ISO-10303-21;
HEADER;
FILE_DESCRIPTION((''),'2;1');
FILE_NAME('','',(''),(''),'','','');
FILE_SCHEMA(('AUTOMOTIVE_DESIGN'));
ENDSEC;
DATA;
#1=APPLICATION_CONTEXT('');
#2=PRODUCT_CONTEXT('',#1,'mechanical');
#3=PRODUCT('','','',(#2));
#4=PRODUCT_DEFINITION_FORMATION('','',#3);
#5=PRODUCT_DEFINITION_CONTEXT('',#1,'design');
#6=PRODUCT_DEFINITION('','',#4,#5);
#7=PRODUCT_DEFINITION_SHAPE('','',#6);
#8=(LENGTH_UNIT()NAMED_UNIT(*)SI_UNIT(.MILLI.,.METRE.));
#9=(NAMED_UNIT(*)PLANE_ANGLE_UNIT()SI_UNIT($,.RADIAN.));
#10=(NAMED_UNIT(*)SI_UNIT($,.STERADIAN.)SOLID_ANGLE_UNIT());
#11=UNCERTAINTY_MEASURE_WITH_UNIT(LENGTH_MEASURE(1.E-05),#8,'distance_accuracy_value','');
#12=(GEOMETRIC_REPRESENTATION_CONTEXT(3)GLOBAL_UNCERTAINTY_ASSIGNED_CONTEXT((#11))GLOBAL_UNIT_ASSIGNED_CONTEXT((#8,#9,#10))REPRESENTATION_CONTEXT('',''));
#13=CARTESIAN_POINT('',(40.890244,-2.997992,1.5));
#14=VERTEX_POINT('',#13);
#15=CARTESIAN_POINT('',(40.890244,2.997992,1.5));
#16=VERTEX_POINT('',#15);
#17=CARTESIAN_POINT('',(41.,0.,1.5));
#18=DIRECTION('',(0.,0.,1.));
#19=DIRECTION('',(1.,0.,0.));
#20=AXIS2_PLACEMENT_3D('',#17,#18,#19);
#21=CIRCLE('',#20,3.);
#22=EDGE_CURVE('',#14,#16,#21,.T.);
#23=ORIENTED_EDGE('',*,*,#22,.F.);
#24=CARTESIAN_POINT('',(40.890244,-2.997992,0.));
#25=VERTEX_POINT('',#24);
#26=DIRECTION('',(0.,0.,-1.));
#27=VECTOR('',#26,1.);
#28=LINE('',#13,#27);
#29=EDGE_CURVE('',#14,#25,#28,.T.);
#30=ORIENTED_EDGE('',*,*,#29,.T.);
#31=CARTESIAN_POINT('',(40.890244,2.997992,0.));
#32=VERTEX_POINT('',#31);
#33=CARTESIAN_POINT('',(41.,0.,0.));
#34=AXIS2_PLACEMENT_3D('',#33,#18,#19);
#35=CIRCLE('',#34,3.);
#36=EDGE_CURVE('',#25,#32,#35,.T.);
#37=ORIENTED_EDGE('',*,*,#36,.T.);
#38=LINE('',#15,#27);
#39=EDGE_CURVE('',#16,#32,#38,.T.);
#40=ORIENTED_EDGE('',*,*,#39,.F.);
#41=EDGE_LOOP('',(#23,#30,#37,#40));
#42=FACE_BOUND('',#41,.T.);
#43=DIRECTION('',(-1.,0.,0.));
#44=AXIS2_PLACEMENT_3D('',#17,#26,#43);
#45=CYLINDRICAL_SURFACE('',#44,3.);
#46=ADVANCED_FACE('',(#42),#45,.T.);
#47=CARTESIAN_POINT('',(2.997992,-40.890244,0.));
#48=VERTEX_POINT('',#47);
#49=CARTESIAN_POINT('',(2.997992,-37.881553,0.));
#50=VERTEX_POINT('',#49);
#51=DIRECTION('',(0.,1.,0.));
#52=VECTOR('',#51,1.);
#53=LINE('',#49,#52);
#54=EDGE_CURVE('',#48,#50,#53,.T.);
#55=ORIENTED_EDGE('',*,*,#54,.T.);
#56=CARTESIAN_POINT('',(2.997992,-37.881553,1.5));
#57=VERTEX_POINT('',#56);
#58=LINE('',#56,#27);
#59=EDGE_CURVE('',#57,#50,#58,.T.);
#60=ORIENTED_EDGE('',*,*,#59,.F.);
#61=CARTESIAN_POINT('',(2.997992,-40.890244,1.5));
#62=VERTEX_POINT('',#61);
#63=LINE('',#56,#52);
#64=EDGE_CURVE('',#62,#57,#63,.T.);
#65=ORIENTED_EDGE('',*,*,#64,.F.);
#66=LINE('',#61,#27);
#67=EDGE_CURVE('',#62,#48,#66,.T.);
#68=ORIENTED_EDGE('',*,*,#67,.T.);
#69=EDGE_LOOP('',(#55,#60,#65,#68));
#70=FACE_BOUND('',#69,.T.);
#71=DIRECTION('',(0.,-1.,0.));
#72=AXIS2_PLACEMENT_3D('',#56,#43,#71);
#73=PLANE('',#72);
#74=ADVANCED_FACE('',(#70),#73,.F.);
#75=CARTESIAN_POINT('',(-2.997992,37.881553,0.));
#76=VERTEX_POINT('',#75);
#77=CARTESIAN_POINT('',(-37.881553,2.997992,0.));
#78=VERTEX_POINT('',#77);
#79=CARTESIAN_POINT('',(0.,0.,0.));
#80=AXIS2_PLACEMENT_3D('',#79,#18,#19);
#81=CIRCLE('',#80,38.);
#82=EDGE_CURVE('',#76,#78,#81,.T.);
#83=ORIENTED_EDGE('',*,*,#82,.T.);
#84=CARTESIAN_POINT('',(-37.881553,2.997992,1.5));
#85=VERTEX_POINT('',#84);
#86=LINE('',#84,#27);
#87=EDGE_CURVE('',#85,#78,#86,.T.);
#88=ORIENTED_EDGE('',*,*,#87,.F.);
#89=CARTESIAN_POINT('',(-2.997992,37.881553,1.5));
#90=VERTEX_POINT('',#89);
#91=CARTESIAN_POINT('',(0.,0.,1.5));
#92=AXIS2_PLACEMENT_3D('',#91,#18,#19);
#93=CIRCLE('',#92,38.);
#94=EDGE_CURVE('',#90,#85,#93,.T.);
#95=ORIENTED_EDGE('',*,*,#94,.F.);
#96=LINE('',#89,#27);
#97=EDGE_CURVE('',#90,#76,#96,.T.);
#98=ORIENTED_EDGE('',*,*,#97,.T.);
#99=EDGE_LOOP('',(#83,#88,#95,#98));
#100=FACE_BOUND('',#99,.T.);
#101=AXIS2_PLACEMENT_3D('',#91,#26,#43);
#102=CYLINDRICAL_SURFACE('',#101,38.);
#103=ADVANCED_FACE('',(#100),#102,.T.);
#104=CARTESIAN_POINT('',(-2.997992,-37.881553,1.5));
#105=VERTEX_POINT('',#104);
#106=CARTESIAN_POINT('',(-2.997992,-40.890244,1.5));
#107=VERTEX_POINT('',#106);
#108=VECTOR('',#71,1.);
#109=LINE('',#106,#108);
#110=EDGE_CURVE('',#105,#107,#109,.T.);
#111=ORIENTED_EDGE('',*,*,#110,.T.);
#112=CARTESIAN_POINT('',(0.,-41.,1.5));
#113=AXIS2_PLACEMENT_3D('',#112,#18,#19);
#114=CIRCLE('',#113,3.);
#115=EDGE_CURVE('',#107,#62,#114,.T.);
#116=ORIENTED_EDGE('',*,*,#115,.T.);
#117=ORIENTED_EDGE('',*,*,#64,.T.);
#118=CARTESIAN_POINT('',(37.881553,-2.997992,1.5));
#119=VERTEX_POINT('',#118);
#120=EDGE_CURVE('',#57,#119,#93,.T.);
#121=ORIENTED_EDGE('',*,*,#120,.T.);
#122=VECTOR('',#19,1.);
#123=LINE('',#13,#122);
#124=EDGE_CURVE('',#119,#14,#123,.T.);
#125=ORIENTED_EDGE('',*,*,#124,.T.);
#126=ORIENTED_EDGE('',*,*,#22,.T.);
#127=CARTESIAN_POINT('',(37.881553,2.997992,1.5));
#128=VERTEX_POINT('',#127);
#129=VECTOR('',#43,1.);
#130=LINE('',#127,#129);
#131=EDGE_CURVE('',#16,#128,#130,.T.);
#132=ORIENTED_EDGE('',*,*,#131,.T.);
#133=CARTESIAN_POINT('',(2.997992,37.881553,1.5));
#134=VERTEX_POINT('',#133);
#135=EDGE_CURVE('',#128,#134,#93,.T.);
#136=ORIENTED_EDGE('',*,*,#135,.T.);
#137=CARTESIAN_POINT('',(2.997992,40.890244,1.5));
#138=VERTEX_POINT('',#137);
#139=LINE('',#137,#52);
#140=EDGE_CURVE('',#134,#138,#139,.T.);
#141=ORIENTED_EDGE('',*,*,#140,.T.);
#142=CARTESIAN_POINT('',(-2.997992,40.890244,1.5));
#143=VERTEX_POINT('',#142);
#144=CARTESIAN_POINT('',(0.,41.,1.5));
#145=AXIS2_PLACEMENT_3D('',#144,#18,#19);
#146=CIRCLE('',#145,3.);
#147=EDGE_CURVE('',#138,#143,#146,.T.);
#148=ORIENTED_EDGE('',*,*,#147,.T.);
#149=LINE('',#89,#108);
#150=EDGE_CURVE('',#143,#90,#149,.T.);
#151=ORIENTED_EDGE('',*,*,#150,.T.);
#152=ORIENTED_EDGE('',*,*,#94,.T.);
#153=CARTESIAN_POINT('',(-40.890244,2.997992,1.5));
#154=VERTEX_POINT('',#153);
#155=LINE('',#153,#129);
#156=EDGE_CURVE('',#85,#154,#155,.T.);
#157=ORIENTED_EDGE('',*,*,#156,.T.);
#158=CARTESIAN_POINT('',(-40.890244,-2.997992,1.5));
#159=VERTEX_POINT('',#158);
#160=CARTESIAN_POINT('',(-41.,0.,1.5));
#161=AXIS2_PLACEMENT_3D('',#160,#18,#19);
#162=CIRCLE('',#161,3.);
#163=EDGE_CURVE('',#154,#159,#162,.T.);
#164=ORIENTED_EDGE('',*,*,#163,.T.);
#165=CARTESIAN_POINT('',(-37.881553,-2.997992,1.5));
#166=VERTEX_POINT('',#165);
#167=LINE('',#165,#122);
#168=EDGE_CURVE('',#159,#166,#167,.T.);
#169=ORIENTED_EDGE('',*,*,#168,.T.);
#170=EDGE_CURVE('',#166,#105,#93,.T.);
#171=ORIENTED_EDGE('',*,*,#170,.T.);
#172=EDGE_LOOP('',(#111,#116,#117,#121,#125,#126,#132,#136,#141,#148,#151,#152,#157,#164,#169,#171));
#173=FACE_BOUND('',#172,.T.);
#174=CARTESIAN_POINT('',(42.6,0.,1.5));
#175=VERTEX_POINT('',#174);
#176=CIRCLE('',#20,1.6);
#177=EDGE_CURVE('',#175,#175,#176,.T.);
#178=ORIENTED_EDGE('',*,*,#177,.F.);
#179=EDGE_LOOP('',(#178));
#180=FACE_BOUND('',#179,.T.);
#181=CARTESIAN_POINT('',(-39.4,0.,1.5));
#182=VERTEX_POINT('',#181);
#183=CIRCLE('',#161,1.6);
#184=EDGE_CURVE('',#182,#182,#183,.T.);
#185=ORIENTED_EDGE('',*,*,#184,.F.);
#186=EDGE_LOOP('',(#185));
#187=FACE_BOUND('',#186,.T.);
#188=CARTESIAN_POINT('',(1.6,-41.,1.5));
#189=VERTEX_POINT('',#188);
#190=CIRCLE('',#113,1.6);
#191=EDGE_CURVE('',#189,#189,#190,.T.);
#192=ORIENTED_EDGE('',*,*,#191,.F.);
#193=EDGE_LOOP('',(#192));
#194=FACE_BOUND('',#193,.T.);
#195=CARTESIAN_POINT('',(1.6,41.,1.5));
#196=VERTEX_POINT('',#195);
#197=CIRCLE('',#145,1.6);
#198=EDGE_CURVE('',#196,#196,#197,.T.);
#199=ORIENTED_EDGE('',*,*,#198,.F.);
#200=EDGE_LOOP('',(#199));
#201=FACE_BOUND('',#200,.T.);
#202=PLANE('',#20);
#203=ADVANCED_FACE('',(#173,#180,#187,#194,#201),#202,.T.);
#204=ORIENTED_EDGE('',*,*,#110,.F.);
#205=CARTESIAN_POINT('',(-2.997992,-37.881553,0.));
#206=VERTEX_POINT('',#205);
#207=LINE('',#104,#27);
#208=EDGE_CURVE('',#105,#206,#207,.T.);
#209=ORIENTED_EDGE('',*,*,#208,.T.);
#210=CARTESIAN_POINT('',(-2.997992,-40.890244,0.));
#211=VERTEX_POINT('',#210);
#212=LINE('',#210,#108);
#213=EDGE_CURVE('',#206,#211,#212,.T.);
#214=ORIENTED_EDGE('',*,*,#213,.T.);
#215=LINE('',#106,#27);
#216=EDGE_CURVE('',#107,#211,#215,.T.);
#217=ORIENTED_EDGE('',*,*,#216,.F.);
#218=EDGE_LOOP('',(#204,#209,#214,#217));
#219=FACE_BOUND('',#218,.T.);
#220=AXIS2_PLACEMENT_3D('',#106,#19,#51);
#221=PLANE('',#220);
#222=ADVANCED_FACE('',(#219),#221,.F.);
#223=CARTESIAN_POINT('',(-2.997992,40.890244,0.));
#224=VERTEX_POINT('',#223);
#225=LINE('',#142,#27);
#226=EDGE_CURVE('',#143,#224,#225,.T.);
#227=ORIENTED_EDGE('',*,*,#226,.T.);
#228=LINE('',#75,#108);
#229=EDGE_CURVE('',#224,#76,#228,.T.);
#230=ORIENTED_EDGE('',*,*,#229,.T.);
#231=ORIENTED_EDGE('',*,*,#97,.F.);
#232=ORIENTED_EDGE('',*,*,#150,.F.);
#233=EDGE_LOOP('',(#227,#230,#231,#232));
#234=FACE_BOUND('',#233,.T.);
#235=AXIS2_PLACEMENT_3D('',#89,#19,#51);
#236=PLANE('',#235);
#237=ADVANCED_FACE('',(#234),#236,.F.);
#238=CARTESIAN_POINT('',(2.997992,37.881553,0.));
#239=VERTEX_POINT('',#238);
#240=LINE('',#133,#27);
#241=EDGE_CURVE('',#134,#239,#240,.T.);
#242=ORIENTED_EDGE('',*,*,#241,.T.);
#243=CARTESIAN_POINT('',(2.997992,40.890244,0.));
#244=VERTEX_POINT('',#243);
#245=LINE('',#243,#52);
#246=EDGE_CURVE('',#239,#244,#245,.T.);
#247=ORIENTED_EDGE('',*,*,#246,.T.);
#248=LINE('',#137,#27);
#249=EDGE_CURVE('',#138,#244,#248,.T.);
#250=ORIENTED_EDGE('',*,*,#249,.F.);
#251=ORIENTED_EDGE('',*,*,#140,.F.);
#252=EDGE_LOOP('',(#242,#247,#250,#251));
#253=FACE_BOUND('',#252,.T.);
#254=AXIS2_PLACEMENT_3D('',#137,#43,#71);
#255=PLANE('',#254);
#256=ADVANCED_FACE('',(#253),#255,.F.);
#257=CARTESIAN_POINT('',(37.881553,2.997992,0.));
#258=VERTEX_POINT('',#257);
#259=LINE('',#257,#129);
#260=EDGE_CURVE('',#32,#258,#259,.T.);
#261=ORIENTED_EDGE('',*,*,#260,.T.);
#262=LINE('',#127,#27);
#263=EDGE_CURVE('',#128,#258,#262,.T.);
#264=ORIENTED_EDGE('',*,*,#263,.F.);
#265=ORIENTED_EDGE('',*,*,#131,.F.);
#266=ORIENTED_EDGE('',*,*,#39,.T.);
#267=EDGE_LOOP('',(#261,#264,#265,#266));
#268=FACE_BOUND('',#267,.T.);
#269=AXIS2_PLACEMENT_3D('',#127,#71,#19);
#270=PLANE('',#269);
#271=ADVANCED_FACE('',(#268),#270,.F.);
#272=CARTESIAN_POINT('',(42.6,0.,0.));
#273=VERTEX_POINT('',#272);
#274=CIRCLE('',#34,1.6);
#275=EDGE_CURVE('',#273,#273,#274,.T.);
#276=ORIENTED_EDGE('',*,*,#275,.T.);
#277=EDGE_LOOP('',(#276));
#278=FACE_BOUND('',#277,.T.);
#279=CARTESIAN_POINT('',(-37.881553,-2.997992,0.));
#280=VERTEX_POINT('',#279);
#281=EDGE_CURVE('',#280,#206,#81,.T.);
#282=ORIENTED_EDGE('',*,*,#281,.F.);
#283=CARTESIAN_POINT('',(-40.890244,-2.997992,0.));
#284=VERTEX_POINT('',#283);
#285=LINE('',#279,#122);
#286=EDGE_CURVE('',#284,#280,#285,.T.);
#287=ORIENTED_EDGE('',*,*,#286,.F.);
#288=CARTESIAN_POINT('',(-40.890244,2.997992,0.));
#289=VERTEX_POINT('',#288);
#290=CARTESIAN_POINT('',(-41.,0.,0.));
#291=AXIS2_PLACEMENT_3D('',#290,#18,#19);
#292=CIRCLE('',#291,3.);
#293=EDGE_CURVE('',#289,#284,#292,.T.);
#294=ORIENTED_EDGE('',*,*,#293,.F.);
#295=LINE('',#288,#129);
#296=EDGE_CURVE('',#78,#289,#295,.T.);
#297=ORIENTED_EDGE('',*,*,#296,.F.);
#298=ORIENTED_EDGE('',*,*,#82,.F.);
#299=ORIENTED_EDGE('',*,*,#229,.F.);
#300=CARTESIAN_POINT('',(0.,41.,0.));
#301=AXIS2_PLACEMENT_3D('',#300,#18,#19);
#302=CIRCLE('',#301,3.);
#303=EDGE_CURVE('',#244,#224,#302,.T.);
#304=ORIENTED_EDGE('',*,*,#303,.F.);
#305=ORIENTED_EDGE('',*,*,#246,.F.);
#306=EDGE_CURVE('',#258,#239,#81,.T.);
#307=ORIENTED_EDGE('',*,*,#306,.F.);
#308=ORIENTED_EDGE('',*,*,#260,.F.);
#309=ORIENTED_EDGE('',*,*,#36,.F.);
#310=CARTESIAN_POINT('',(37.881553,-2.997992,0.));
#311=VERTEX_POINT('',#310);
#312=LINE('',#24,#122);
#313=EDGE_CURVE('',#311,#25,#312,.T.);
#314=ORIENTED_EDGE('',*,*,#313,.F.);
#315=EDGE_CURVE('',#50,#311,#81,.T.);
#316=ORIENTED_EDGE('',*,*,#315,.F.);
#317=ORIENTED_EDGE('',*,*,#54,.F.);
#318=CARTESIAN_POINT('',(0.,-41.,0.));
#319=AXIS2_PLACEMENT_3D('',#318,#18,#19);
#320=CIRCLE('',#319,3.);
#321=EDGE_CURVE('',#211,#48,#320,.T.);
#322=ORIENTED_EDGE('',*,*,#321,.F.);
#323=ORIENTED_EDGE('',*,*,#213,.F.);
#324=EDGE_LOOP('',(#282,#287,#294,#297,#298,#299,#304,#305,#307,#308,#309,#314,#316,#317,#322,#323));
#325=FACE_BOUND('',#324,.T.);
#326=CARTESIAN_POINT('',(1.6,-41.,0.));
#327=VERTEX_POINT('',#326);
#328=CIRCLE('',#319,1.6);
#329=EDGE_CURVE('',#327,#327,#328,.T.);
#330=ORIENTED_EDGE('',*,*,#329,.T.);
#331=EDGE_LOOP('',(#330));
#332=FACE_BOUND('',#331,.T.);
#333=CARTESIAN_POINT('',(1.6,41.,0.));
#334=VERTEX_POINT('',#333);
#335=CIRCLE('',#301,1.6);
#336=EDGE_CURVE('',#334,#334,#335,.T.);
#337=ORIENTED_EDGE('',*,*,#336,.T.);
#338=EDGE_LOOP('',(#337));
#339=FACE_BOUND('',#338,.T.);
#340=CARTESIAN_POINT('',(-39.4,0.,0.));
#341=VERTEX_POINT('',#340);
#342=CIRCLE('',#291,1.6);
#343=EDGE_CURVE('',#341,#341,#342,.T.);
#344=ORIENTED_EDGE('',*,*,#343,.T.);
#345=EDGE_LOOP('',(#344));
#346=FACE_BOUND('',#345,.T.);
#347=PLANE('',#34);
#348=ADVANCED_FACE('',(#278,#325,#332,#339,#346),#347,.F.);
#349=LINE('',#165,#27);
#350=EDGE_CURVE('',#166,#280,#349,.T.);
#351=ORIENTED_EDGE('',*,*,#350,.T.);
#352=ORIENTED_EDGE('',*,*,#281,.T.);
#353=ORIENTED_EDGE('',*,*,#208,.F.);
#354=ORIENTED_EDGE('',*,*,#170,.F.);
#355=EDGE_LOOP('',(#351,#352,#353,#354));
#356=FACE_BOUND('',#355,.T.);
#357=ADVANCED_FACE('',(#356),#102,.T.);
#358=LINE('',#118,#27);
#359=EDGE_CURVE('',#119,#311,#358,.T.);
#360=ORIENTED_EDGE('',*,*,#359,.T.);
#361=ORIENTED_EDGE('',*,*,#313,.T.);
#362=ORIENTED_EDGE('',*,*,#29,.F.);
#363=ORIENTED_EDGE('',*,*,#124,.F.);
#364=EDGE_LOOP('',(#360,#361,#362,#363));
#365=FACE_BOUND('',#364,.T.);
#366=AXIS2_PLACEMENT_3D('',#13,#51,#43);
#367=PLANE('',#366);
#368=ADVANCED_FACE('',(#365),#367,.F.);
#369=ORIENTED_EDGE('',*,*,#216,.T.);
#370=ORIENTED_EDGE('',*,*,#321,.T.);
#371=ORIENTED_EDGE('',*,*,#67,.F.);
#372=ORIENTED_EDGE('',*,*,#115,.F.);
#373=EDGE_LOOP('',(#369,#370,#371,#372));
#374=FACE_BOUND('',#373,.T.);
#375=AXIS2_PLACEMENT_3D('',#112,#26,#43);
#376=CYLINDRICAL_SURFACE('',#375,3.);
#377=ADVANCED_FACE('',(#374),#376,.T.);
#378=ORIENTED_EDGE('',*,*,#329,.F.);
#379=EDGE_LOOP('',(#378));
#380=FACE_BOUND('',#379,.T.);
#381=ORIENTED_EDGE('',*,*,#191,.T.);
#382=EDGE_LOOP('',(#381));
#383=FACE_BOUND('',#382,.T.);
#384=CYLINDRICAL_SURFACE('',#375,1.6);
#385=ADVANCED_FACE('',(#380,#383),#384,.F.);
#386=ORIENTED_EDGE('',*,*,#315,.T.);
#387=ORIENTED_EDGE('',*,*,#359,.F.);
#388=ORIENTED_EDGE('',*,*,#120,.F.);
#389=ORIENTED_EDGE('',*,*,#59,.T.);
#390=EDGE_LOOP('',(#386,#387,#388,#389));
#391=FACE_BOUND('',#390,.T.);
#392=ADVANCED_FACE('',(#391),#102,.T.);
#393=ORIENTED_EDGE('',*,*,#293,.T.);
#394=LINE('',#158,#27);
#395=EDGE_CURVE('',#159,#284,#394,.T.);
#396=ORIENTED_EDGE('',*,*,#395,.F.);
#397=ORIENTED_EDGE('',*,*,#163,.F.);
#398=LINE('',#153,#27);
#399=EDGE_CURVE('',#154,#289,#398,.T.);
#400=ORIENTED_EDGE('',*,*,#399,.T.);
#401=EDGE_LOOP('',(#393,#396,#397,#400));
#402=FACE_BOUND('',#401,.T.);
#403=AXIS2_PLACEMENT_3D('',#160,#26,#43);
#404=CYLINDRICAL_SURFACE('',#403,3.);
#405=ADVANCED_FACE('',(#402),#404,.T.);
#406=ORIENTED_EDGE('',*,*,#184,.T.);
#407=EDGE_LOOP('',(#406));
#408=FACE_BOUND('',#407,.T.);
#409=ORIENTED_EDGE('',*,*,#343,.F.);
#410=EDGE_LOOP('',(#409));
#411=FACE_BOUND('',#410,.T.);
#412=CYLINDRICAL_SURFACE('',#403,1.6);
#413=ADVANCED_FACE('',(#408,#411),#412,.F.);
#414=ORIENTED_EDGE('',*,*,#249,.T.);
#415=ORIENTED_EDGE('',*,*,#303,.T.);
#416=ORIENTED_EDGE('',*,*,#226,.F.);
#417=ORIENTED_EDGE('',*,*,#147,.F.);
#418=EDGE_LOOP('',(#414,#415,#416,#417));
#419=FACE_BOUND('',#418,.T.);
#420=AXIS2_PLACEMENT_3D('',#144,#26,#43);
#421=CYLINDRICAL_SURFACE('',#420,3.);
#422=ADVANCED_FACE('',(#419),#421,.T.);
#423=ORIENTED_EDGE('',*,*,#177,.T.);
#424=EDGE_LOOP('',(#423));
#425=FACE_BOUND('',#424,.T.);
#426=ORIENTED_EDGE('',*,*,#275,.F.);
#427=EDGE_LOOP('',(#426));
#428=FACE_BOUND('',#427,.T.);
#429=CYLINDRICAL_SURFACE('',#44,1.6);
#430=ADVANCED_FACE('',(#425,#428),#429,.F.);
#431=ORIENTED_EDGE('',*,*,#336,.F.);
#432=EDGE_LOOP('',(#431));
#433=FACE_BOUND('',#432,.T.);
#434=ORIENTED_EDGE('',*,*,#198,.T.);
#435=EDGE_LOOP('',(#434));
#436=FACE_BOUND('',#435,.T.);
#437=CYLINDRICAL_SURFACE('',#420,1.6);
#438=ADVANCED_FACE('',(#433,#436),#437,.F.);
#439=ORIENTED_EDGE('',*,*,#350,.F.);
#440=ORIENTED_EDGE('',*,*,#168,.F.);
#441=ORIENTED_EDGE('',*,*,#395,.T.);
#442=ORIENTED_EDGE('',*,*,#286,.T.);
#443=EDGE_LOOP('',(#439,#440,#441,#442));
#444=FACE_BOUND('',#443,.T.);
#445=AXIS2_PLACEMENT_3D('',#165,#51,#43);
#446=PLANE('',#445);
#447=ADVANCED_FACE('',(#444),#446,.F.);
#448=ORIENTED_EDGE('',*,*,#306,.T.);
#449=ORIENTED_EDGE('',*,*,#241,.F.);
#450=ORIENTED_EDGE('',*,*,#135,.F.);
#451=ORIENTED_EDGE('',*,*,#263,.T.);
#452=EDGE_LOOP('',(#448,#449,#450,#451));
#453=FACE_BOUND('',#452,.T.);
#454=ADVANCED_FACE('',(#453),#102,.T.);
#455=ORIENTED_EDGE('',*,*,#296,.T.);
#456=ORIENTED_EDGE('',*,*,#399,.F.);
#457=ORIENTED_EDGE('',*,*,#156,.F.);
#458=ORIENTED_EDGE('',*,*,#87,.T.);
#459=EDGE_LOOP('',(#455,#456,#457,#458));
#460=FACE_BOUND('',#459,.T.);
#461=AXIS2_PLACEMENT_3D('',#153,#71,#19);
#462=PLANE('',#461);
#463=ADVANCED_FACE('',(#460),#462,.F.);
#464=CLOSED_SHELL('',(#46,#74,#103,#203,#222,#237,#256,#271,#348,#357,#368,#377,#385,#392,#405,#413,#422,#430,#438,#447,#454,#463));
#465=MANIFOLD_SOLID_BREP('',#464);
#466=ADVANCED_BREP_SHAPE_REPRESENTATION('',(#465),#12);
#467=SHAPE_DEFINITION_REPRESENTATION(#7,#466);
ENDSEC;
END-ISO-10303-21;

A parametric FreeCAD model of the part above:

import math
import FreeCAD as App
import Part
import Sketcher

V = App.Vector
Q = App.Units.Quantity

doc = App.newDocument("Part")
body = doc.addObject("PartDesign::Body", "Body")

# Sketch on XY plane
sketch1 = body.newObject("Sketcher::SketchObject", "Sketch")
sketch1.AttachmentSupport = (doc.getObject("XY_Plane"), [""])
sketch1.MapMode = "FlatFace"
sketch1.addGeometry([
    Part.LineSegment(V(-37.9, 3, 0), V(-40.9, 3, 0)),  # 0
    Part.ArcOfCircle(Part.Circle(V(-41, 0, 0), V(0, 0, 1), 3), math.radians(88), math.radians(272)),  # 1
    Part.LineSegment(V(-40.9, -3, 0), V(-37.9, -3, 0)),  # 2
    Part.ArcOfCircle(Part.Circle(V(0, 0, 0), V(0, 0, 1), 38), math.radians(-175), math.radians(-95)),  # 3
    Part.LineSegment(V(-3, -37.9, 0), V(-3, -40.9, 0)),  # 4
    Part.ArcOfCircle(Part.Circle(V(0, -41, 0), V(0, 0, 1), 3), math.radians(178), math.radians(362)),  # 5
    Part.LineSegment(V(3, -40.9, 0), V(3, -37.9, 0)),  # 6
    Part.ArcOfCircle(Part.Circle(V(0, 0, 0), V(0, 0, 1), 38), math.radians(-85), math.radians(-5)),  # 7
    Part.LineSegment(V(37.9, -3, 0), V(40.9, -3, 0)),  # 8
    Part.ArcOfCircle(Part.Circle(V(41, 0, 0), V(0, 0, 1), 3), math.radians(-92), math.radians(92)),  # 9
    Part.LineSegment(V(40.9, 3, 0), V(37.9, 3, 0)),  # 10
    Part.ArcOfCircle(Part.Circle(V(0, 0, 0), V(0, 0, 1), 38), math.radians(5), math.radians(85)),  # 11
    Part.LineSegment(V(3, 37.9, 0), V(3, 40.9, 0)),  # 12
    Part.ArcOfCircle(Part.Circle(V(0, 41, 0), V(0, 0, 1), 3), math.radians(-2), math.radians(182)),  # 13
    Part.LineSegment(V(-3, 40.9, 0), V(-3, 37.9, 0)),  # 14
    Part.ArcOfCircle(Part.Circle(V(0, 0, 0), V(0, 0, 1), 38), math.radians(95), math.radians(175)),  # 15
    Part.Circle(V(0, -41, 0), V(0, 0, 1), 1.6),  # 16
    Part.Circle(V(41, 0, 0), V(0, 0, 1), 1.6),  # 17
    Part.Circle(V(-41, 0, 0), V(0, 0, 1), 1.6),  # 18
    Part.Circle(V(0, 41, 0), V(0, 0, 1), 1.6),  # 19
], False)
sketch1.addConstraint([
    Sketcher.Constraint("Coincident", 0, 2, 1, 1),
    Sketcher.Constraint("Coincident", 1, 2, 2, 1),
    Sketcher.Constraint("Coincident", 2, 2, 3, 1),
    Sketcher.Constraint("Coincident", 3, 2, 4, 1),
    Sketcher.Constraint("Coincident", 4, 2, 5, 1),
    Sketcher.Constraint("Coincident", 5, 2, 6, 1),
    Sketcher.Constraint("Coincident", 6, 2, 7, 1),
    Sketcher.Constraint("Coincident", 7, 2, 8, 1),
    Sketcher.Constraint("Coincident", 8, 2, 9, 1),
    Sketcher.Constraint("Coincident", 9, 2, 10, 1),
    Sketcher.Constraint("Coincident", 10, 2, 11, 1),
    Sketcher.Constraint("Coincident", 11, 2, 12, 1),
    Sketcher.Constraint("Coincident", 12, 2, 13, 1),
    Sketcher.Constraint("Coincident", 13, 2, 14, 1),
    Sketcher.Constraint("Coincident", 14, 2, 15, 1),
    Sketcher.Constraint("Coincident", 15, 2, 0, 1),
    Sketcher.Constraint("Horizontal", 0),
    Sketcher.Constraint("Horizontal", 2),
    Sketcher.Constraint("Vertical", 4),
    Sketcher.Constraint("Vertical", 6),
    Sketcher.Constraint("Horizontal", 8),
    Sketcher.Constraint("Horizontal", 10),
    Sketcher.Constraint("Vertical", 12),
    Sketcher.Constraint("Vertical", 14),
    Sketcher.Constraint("Coincident", 3, 3, -1, 1),
    Sketcher.Constraint("Coincident", 7, 3, -1, 1),
    Sketcher.Constraint("Coincident", 11, 3, -1, 1),
    Sketcher.Constraint("Coincident", 15, 3, -1, 1),
    Sketcher.Constraint("Coincident", 16, 3, 5, 3),
    Sketcher.Constraint("Coincident", 17, 3, 9, 3),
    Sketcher.Constraint("Coincident", 18, 3, 1, 3),
    Sketcher.Constraint("Coincident", 19, 3, 13, 3),
    Sketcher.Constraint("Equal", 1, 5),
    Sketcher.Constraint("Equal", 3, 7),
    Sketcher.Constraint("Equal", 5, 9),
    Sketcher.Constraint("Equal", 7, 11),
    Sketcher.Constraint("Equal", 9, 13),
    Sketcher.Constraint("Equal", 11, 15),
    Sketcher.Constraint("Equal", 16, 17),
    Sketcher.Constraint("Equal", 17, 18),
    Sketcher.Constraint("Equal", 18, 19),
    Sketcher.Constraint("Symmetric", 1, 3, 9, 3, -1, 1),
    Sketcher.Constraint("Symmetric", 5, 3, 13, 3, -1, 1),
    Sketcher.Constraint("Symmetric", 4, 2, 5, 2, -2),
    Sketcher.Constraint("Symmetric", 1, 2, 8, 2, -2),
    Sketcher.Constraint("Horizontal", 0, 2, 9, 2),
    Sketcher.Constraint("Horizontal", 12, 2, 13, 2),
    Sketcher.Constraint("Vertical", 0, 2, 1, 2),
    Sketcher.Constraint("Vertical", 4, 2, 13, 2),
    Sketcher.Constraint("Equal", 10, 4),
    Sketcher.Constraint("Radius", 1, Q("3 mm")),
    Sketcher.Constraint("Radius", 3, Q("38 mm")),
    Sketcher.Constraint("Diameter", 16, Q("3.2 mm")),
    Sketcher.Constraint("DistanceX", 1, 3, -1, 1, Q("41 mm")),
    Sketcher.Constraint("DistanceY", 5, 3, -1, 1, Q("41 mm")),
    Sketcher.Constraint("DistanceX", 0, 2, 0, 1, Q("3.008691 mm")),
])
pad1 = body.newObject("PartDesign::Pad", "Pad")
pad1.Profile = sketch1
pad1.Length = 1.5

doc.recompute()
